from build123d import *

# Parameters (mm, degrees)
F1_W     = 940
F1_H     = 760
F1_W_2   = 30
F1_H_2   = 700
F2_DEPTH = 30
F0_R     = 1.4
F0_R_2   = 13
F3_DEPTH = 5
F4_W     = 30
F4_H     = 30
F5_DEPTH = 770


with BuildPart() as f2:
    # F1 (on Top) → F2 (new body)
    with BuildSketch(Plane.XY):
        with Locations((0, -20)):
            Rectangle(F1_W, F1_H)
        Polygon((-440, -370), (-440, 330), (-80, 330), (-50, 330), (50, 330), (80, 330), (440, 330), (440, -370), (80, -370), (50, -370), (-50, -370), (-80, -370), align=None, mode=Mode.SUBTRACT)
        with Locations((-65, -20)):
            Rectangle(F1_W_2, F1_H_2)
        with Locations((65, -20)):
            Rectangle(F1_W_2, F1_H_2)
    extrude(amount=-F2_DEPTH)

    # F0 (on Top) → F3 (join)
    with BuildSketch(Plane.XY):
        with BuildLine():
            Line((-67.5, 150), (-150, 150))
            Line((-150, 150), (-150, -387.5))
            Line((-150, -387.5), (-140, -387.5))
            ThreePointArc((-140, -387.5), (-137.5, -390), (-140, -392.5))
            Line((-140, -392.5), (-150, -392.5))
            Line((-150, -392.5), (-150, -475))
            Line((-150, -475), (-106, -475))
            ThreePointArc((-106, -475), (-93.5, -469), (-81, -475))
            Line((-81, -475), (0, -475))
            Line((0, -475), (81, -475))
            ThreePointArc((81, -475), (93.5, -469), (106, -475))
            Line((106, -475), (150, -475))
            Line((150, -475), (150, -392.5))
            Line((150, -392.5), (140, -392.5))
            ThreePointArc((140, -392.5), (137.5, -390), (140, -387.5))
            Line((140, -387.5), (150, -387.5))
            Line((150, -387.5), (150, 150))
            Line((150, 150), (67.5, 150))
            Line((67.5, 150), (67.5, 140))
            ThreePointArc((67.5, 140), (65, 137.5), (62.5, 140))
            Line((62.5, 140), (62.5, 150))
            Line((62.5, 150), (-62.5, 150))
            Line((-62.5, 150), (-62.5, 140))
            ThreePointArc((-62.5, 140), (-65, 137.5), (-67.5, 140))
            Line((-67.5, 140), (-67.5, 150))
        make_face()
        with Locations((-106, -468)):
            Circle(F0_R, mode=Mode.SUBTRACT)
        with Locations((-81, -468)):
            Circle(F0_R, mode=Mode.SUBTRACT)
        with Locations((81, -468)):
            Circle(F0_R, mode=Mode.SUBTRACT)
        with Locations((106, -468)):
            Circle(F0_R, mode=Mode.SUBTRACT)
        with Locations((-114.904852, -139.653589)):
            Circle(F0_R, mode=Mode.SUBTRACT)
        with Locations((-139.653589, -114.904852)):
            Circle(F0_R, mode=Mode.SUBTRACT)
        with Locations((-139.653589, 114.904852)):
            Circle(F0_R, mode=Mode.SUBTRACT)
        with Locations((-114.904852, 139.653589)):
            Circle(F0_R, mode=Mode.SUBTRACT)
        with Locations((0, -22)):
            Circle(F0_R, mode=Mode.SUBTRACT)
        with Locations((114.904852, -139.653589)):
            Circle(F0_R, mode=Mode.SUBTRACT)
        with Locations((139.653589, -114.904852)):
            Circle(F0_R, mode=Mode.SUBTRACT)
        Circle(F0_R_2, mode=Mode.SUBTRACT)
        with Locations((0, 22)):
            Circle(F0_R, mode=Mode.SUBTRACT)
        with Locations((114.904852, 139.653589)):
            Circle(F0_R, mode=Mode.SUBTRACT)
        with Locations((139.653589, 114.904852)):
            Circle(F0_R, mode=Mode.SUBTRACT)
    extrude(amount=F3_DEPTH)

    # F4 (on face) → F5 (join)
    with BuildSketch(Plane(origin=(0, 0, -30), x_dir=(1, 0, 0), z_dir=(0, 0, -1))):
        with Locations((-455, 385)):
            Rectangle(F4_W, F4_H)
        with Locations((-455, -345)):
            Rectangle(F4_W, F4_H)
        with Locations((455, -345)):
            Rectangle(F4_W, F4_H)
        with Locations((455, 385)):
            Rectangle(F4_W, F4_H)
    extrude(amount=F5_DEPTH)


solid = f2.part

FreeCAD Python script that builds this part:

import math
import FreeCAD as App
import Part
import Sketcher
from FreeCAD import Vector
Q = App.Units.Quantity


def add_polygon(sketch, points):
    """Adds a closed chain of lines whose ends are joined by coincident constraints."""
    first, n = sketch.GeometryCount, len(points)
    for a, b in zip(points, points[1:] + points[:1]):
        sketch.addGeometry(Part.LineSegment(App.Vector(*a, 0), App.Vector(*b, 0)), False)
    for i in range(n):
        sketch.addConstraint(Sketcher.Constraint("Coincident", first + i, 2, first + (i + 1) % n, 1))

doc = App.newDocument("Part")
body = doc.addObject("PartDesign::Body", "Body")

# Sketch on XY plane
sketch1 = doc.addObject("Sketcher::SketchObject", "Sketch")
body.addObject(sketch1)
sketch1.AttachmentSupport = (doc.XY_Plane, [""])
sketch1.MapMode = "FlatFace"
add_polygon(sketch1, [(-470, 360), (-470, -400), (470, -400), (470, 360)])  # lines 0-3
add_polygon(sketch1, [(440, -370), (80, -370), (80, 330), (440, 330)])  # lines 4-7
add_polygon(sketch1, [(50, -370), (-50, -370), (-50, 330), (50, 330)])  # lines 8-11
add_polygon(sketch1, [(-80, -370), (-440, -370), (-440, 330), (-80, 330)])  # lines 12-15
sketch1.addConstraint([
    Sketcher.Constraint("Vertical", 0),
    Sketcher.Constraint("Horizontal", 1),
    Sketcher.Constraint("Vertical", 2),
    Sketcher.Constraint("Horizontal", 3),
    Sketcher.Constraint("Horizontal", 4),
    Sketcher.Constraint("Vertical", 5),
    Sketcher.Constraint("Horizontal", 6),
    Sketcher.Constraint("Vertical", 7),
    Sketcher.Constraint("Horizontal", 8),
    Sketcher.Constraint("Vertical", 9),
    Sketcher.Constraint("Horizontal", 10),
    Sketcher.Constraint("Vertical", 11),
    Sketcher.Constraint("Horizontal", 12),
    Sketcher.Constraint("Vertical", 13),
    Sketcher.Constraint("Horizontal", 14),
    Sketcher.Constraint("Vertical", 15),
    Sketcher.Constraint("Symmetric", 7, 2, 12, 2, -2),
    Sketcher.Constraint("Symmetric", 5, 2, 14, 2, -2),
    Sketcher.Constraint("Horizontal", 7, 2, 8, 2),
    Sketcher.Constraint("Horizontal", 6, 2, 9, 2),
    Sketcher.Constraint("DistanceX", 1, 1, 1, 2, Q("940 mm")),
    Sketcher.Constraint("DistanceX", 4, 2, 4, 1, Q("360 mm")),
    Sketcher.Constraint("DistanceX", 8, 2, 8, 1, Q("100 mm")),
    Sketcher.Constraint("DistanceY", 0, 2, 0, 1, Q("760 mm")),
    Sketcher.Constraint("DistanceY", 5, 1, 5, 2, Q("700 mm")),
    Sketcher.Constraint("DistanceX", 0, 2, -1, 1, Q("470 mm")),
    Sketcher.Constraint("DistanceY", 0, 2, -1, 1, Q("400 mm")),
    Sketcher.Constraint("DistanceX", -1, 1, 4, 2, Q("80 mm")),
    Sketcher.Constraint("DistanceY", 4, 2, -1, 1, Q("370 mm")),
    Sketcher.Constraint("DistanceX", 8, 2, -1, 1, Q("50 mm")),
])
pad1 = doc.addObject("PartDesign::Pad", "Pad")
body.addObject(pad1)
pad1.Profile = sketch1
pad1.Length = 30
pad1.Reversed = True

# Sketch on XY plane
sketch2 = doc.addObject("Sketcher::SketchObject", "Sketch001")
body.addObject(sketch2)
sketch2.AttachmentSupport = (doc.XY_Plane, [""])
sketch2.MapMode = "FlatFace"
sketch2.addGeometry([
    Part.LineSegment(Vector(-67.5, 150, 0), Vector(-150, 150, 0)),  # 0
    Part.LineSegment(Vector(-150, 150, 0), Vector(-150, -387.5, 0)),  # 1
    Part.LineSegment(Vector(-150, -387.5, 0), Vector(-140, -387.5, 0)),  # 2
    Part.ArcOfCircle(Part.Circle(Vector(-140, -390, 0), Vector(0, 0, 1), 2.5), math.radians(-90), math.radians(90)),  # 3
    Part.LineSegment(Vector(-140, -392.5, 0), Vector(-150, -392.5, 0)),  # 4
    Part.LineSegment(Vector(-150, -392.5, 0), Vector(-150, -475, 0)),  # 5
    Part.LineSegment(Vector(-150, -475, 0), Vector(-106, -475, 0)),  # 6
    Part.ArcOfCircle(Part.Circle(Vector(-93.5, -485, 0), Vector(0, 0, 1), 16), math.radians(39), math.radians(141)),  # 7
    Part.LineSegment(Vector(-81, -475, 0), Vector(81, -475, 0)),  # 8
    Part.ArcOfCircle(Part.Circle(Vector(93.5, -485, 0), Vector(0, 0, 1), 16), math.radians(39), math.radians(141)),  # 9
    Part.LineSegment(Vector(106, -475, 0), Vector(150, -475, 0)),  # 10
    Part.LineSegment(Vector(150, -475, 0), Vector(150, -392.5, 0)),  # 11
    Part.LineSegment(Vector(150, -392.5, 0), Vector(140, -392.5, 0)),  # 12
    Part.ArcOfCircle(Part.Circle(Vector(140, -390, 0), Vector(0, 0, 1), 2.5), math.radians(90), math.radians(270)),  # 13
    Part.LineSegment(Vector(140, -387.5, 0), Vector(150, -387.5, 0)),  # 14
    Part.LineSegment(Vector(150, -387.5, 0), Vector(150, 150, 0)),  # 15
    Part.LineSegment(Vector(150, 150, 0), Vector(67.5, 150, 0)),  # 16
    Part.LineSegment(Vector(67.5, 150, 0), Vector(67.5, 140, 0)),  # 17
    Part.ArcOfCircle(Part.Circle(Vector(65, 140, 0), Vector(0, 0, 1), 2.5), math.radians(180), math.radians(360)),  # 18
    Part.LineSegment(Vector(62.5, 140, 0), Vector(62.5, 150, 0)),  # 19
    Part.LineSegment(Vector(62.5, 150, 0), Vector(-62.5, 150, 0)),  # 20
    Part.LineSegment(Vector(-62.5, 150, 0), Vector(-62.5, 140, 0)),  # 21
    Part.ArcOfCircle(Part.Circle(Vector(-65, 140, 0), Vector(0, 0, 1), 2.5), math.radians(180), math.radians(360)),  # 22
    Part.LineSegment(Vector(-67.5, 140, 0), Vector(-67.5, 150, 0)),  # 23
    Part.Circle(Vector(-106, -468, 0), Vector(0, 0, 1), 1.4),  # 24
    Part.Circle(Vector(-81, -468, 0), Vector(0, 0, 1), 1.4),  # 25
    Part.Circle(Vector(81, -468, 0), Vector(0, 0, 1), 1.4),  # 26
    Part.Circle(Vector(106, -468, 0), Vector(0, 0, 1), 1.4),  # 27
    Part.Circle(Vector(-114.9, -139.7, 0), Vector(0, 0, 1), 1.4),  # 28
    Part.Circle(Vector(-139.7, -114.9, 0), Vector(0, 0, 1), 1.4),  # 29
    Part.Circle(Vector(-139.7, 114.9, 0), Vector(0, 0, 1), 1.4),  # 30
    Part.Circle(Vector(-114.9, 139.7, 0), Vector(0, 0, 1), 1.4),  # 31
    Part.Circle(Vector(0, -22, 0), Vector(0, 0, 1), 1.4),  # 32
    Part.Circle(Vector(114.9, -139.7, 0), Vector(0, 0, 1), 1.4),  # 33
    Part.Circle(Vector(139.7, -114.9, 0), Vector(0, 0, 1), 1.4),  # 34
    Part.Circle(Vector(0, 0, 0), Vector(0, 0, 1), 13),  # 35
    Part.Circle(Vector(0, 22, 0), Vector(0, 0, 1), 1.4),  # 36
    Part.Circle(Vector(114.9, 139.7, 0), Vector(0, 0, 1), 1.4),  # 37
    Part.Circle(Vector(139.7, 114.9, 0), Vector(0, 0, 1), 1.4),  # 38
], False)
sketch2.addConstraint([
    Sketcher.Constraint("Coincident", 0, 2, 1, 1),
    Sketcher.Constraint("Coincident", 1, 2, 2, 1),
    Sketcher.Constraint("Tangent", 2, 2, 3, 2),
    Sketcher.Constraint("Tangent", 3, 1, 4, 1),
    Sketcher.Constraint("Coincident", 4, 2, 5, 1),
    Sketcher.Constraint("Coincident", 5, 2, 6, 1),
    Sketcher.Constraint("Coincident", 6, 2, 7, 2),
    Sketcher.Constraint("Coincident", 7, 1, 8, 1),
    Sketcher.Constraint("Coincident", 8, 2, 9, 2),
    Sketcher.Constraint("Coincident", 9, 1, 10, 1),
    Sketcher.Constraint("Coincident", 10, 2, 11, 1),
    Sketcher.Constraint("Coincident", 11, 2, 12, 1),
    Sketcher.Constraint("Tangent", 12, 2, 13, 2),
    Sketcher.Constraint("Tangent", 13, 1, 14, 1),
    Sketcher.Constraint("Coincident", 14, 2, 15, 1),
    Sketcher.Constraint("Coincident", 15, 2, 16, 1),
    Sketcher.Constraint("Coincident", 16, 2, 17, 1),
    Sketcher.Constraint("Tangent", 17, 2, 18, 2),
    Sketcher.Constraint("Tangent", 18, 1, 19, 1),
    Sketcher.Constraint("Coincident", 19, 2, 20, 1),
    Sketcher.Constraint("Coincident", 20, 2, 21, 1),
    Sketcher.Constraint("Tangent", 21, 2, 22, 2),
    Sketcher.Constraint("Tangent", 22, 1, 23, 1),
    Sketcher.Constraint("Coincident", 23, 2, 0, 1),
    Sketcher.Constraint("Horizontal", 0),
    Sketcher.Constraint("Vertical", 1),
    Sketcher.Constraint("Horizontal", 2),
    Sketcher.Constraint("Horizontal", 4),
    Sketcher.Constraint("Vertical", 5),
    Sketcher.Constraint("Horizontal", 6),
    Sketcher.Constraint("Horizontal", 8),
    Sketcher.Constraint("Horizontal", 10),
    Sketcher.Constraint("Vertical", 11),
    Sketcher.Constraint("Horizontal", 12),
    Sketcher.Constraint("Horizontal", 14),
    Sketcher.Constraint("Vertical", 15),
    Sketcher.Constraint("Horizontal", 16),
    Sketcher.Constraint("Vertical", 17),
    Sketcher.Constraint("Vertical", 19),
    Sketcher.Constraint("Horizontal", 20),
    Sketcher.Constraint("Vertical", 21),
    Sketcher.Constraint("Vertical", 23),
    Sketcher.Constraint("Coincident", 35, 3, -1, 1),
    Sketcher.Constraint("Equal", 7, 9),
    Sketcher.Constraint("Equal", 3, 13),
    Sketcher.Constraint("Equal", 13, 18),
    Sketcher.Constraint("Equal", 18, 22),
    Sketcher.Constraint("Equal", 24, 25),
    Sketcher.Constraint("Equal", 25, 26),
    Sketcher.Constraint("Equal", 26, 27),
    Sketcher.Constraint("Equal", 27, 28),
    Sketcher.Constraint("Equal", 28, 29),
    Sketcher.Constraint("Equal", 29, 30),
    Sketcher.Constraint("Equal", 30, 31),
    Sketcher.Constraint("Equal", 31, 32),
    Sketcher.Constraint("Equal", 32, 33),
    Sketcher.Constraint("Equal", 33, 34),
    Sketcher.Constraint("Equal", 34, 36),
    Sketcher.Constraint("Equal", 36, 37),
    Sketcher.Constraint("Equal", 37, 38),
    Sketcher.Constraint("Symmetric", 31, 3, 33, 3, -1, 1),
    Sketcher.Constraint("Symmetric", 30, 3, 34, 3, -1, 1),
    Sketcher.Constraint("Symmetric", 32, 3, 36, 3, -1, 1),
    Sketcher.Constraint("Symmetric", 28, 3, 37, 3, -1, 1),
    Sketcher.Constraint("Symmetric", 29, 3, 38, 3, -1, 1),
    Sketcher.Constraint("Symmetric", 7, 3, 9, 3, -2),
    Sketcher.Constraint("Symmetric", 3, 3, 13, 3, -2),
    Sketcher.Constraint("Symmetric", 18, 3, 22, 3, -2),
    Sketcher.Constraint("Symmetric", 25, 3, 26, 3, -2),
    Sketcher.Constraint("Symmetric", 24, 3, 27, 3, -2),
    Sketcher.Constraint("Symmetric", 28, 3, 33, 3, -2),
    Sketcher.Constraint("Symmetric", 29, 3, 34, 3, -2),
    Sketcher.Constraint("Symmetric", 5, 2, 10, 2, -2),
    Sketcher.Constraint("Symmetric", 0, 2, 15, 2, -2),
    Sketcher.Constraint("PointOnObject", 32, 3, -2),
    Sketcher.Constraint("Horizontal", 24, 3, 25, 3),
    Sketcher.Constraint("Horizontal", 6, 2, 7, 1),
    Sketcher.Constraint("Horizontal", 16, 2, 19, 2),
    Sketcher.Constraint("Vertical", 1, 2, 4, 2),
    Sketcher.Constraint("Vertical", 24, 3, 6, 2),
    Sketcher.Constraint("Vertical", 25, 3, 7, 1),
    Sketcher.Constraint("Equal", 16, 5),
    Sketcher.Constraint("Equal", 14, 17),
    Sketcher.Constraint("Diameter", 35, Q("26 mm")),
    Sketcher.Constraint("Diameter", 24, Q("2.8 mm")),
    Sketcher.Constraint("Radius", 3, Q("2.5 mm")),
    Sketcher.Constraint("DistanceX", 2, 1, 2, 2, Q("10 mm")),
    Sketcher.Constraint("DistanceX", 6, 1, 6, 2, Q("44 mm")),
    Sketcher.Constraint("DistanceX", 8, 1, 8, 2, Q("162 mm")),
    Sketcher.Constraint("DistanceX", 20, 2, 20, 1, Q("125 mm")),
    Sketcher.Constraint("DistanceX", 0, 2, 0, 1, Q("82.5 mm")),
    Sketcher.Constraint("DistanceY", 1, 2, 1, 1, Q("537.5 mm")),
    Sketcher.Constraint("DistanceY", 3, 3, -1, 1, Q("390 mm")),
    Sketcher.Constraint("DistanceY", 24, 3, -1, 1, Q("468 mm")),
    Sketcher.Constraint("DistanceY", 32, 3, -1, 1, Q("22 mm")),
    Sketcher.Constraint("Radius", 7, Q("16.020833 mm")),
    Sketcher.Constraint("DistanceY", 28, 3, -1, 1, Q("139.653589 mm")),
    Sketcher.Constraint("DistanceX", 29, 3, -1, 1, Q("139.653589 mm")),
    Sketcher.Constraint("DistanceX", 28, 3, 18, 3, Q("179.904852 mm")),
    Sketcher.Constraint("DistanceY", 29, 3, 22, 3, Q("254.904852 mm")),
])
pad2 = doc.addObject("PartDesign::Pad", "Pad001")
body.addObject(pad2)
pad2.Profile = sketch2
pad2.Length = 5

# Sketch on XY plane
sketch3 = doc.addObject("Sketcher::SketchObject", "Sketch002")
body.addObject(sketch3)
sketch3.AttachmentSupport = (doc.XY_Plane, [""])
sketch3.MapMode = "FlatFace"
sketch3.AttachmentOffset = App.Placement(Vector(0, 0, -30), App.Rotation())
add_polygon(sketch3, [(-470, -400), (-470, -370), (-440, -370), (-440, -400)])  # lines 0-3
add_polygon(sketch3, [(-470, 330), (-470, 360), (-440, 360), (-440, 330)])  # lines 4-7
add_polygon(sketch3, [(440, 330), (440, 360), (470, 360), (470, 330)])  # lines 8-11
add_polygon(sketch3, [(440, -400), (440, -370), (470, -370), (470, -400)])  # lines 12-15
sketch3.addConstraint([
    Sketcher.Constraint("Vertical", 0),
    Sketcher.Constraint("Horizontal", 1),
    Sketcher.Constraint("Vertical", 2),
    Sketcher.Constraint("Horizontal", 3),
    Sketcher.Constraint("Vertical", 4),
    Sketcher.Constraint("Horizontal", 5),
    Sketcher.Constraint("Vertical", 6),
    Sketcher.Constraint("Horizontal", 7),
    Sketcher.Constraint("Vertical", 8),
    Sketcher.Constraint("Horizontal", 9),
    Sketcher.Constraint("Vertical", 10),
    Sketcher.Constraint("Horizontal", 11),
    Sketcher.Constraint("Vertical", 12),
    Sketcher.Constraint("Horizontal", 13),
    Sketcher.Constraint("Vertical", 14),
    Sketcher.Constraint("Horizontal", 15),
    Sketcher.Constraint("Symmetric", 5, 2, 8, 2, -2),
    Sketcher.Constraint("Symmetric", 7, 2, 10, 2, -2),
    Sketcher.Constraint("Symmetric", 1, 2, 12, 2, -2),
    Sketcher.Constraint("Symmetric", 3, 2, 14, 2, -2),
    Sketcher.Constraint("Vertical", 3, 2, 4, 2),
    Sketcher.Constraint("Vertical", 2, 2, 5, 2),
    Sketcher.Constraint("Equal", 15, 0),
    Sketcher.Constraint("Equal", 2, 4),
    Sketcher.Constraint("DistanceX", 1, 1, 1, 2, Q("30 mm")),
    Sketcher.Constraint("DistanceX", 0, 2, -1, 1, Q("470 mm")),
    Sketcher.Constraint("DistanceY", 0, 2, -1, 1, Q("370 mm")),
    Sketcher.Constraint("DistanceY", -1, 1, 4, 2, Q("360 mm")),
])
pad3 = doc.addObject("PartDesign::Pad", "Pad002")
body.addObject(pad3)
pad3.Profile = sketch3
pad3.Length = 770
pad3.Reversed = True

doc.recompute()
